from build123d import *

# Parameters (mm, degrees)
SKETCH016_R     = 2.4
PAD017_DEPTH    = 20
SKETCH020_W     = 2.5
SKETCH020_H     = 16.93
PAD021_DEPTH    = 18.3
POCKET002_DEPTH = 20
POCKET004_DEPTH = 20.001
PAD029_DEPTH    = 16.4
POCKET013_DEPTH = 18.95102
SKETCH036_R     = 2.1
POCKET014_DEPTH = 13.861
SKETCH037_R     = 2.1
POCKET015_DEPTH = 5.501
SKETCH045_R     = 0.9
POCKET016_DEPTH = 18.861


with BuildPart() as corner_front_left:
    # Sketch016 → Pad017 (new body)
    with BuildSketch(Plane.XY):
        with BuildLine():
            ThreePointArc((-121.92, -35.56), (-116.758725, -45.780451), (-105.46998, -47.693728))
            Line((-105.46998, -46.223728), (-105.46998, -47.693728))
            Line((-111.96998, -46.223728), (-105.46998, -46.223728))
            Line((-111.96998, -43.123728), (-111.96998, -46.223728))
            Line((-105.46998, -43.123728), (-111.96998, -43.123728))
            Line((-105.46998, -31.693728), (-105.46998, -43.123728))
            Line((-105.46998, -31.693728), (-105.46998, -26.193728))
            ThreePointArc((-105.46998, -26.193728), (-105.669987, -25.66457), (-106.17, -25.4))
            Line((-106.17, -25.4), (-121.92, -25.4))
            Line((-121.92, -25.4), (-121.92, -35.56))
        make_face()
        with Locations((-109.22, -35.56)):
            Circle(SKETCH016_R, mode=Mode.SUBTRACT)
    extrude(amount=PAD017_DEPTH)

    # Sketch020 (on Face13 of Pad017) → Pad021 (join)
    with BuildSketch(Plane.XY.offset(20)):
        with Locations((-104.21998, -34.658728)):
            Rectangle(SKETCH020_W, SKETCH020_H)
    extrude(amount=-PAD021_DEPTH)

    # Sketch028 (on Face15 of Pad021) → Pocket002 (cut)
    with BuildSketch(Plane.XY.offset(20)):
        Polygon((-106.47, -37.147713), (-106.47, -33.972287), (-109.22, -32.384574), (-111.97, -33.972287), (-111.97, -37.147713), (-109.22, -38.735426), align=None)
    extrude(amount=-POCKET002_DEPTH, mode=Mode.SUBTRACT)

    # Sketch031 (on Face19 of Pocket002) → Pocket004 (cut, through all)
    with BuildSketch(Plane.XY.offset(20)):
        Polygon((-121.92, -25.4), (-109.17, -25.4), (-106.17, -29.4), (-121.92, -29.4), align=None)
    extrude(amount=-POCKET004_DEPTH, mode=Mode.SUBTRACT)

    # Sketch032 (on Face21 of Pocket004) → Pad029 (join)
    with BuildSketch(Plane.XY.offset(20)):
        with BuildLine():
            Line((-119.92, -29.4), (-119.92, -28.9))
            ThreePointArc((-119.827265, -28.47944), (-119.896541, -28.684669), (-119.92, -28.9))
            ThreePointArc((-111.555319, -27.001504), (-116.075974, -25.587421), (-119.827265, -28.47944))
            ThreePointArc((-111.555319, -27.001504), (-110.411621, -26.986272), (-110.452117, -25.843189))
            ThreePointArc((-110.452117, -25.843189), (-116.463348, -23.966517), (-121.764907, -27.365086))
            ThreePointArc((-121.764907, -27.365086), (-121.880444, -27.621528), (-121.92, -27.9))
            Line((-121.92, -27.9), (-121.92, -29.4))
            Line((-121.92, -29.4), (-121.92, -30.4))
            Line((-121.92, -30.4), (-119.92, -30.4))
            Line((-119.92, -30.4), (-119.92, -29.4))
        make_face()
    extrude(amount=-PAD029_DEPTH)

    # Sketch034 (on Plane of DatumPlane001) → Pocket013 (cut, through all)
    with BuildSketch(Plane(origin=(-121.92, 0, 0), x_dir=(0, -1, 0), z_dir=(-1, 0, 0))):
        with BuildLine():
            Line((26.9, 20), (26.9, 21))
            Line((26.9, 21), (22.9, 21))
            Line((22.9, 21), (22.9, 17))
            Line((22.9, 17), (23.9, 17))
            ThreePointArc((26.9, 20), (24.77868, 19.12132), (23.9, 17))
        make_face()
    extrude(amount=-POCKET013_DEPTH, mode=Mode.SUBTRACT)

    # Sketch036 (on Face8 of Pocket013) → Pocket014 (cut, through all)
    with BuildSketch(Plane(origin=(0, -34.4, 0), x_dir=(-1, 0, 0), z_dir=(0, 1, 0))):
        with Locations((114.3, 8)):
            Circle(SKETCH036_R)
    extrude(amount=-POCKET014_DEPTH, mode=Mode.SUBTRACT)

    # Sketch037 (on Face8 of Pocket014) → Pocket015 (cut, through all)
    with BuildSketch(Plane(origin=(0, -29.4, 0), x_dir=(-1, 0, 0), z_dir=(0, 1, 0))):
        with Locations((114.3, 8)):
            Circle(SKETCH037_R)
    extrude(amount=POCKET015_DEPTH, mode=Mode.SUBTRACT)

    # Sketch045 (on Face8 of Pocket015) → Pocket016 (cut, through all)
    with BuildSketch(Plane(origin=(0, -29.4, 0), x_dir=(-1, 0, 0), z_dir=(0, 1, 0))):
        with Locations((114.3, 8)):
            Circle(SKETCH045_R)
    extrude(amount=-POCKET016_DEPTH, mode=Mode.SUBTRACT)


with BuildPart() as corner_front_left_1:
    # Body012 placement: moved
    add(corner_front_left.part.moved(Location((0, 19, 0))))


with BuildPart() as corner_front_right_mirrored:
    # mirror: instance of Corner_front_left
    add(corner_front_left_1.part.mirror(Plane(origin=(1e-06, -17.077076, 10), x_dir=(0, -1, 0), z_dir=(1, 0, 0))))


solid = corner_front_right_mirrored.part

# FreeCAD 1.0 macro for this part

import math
import FreeCAD as App
import Part
import Sketcher
Q = App.Units.Quantity


def add_polygon(sketch, points):
    """Adds a closed chain of lines whose ends are joined by coincident constraints."""
    first, n = sketch.GeometryCount, len(points)
    for a, b in zip(points, points[1:] + points[:1]):
        sketch.addGeometry(Part.LineSegment(App.Vector(*a, 0), App.Vector(*b, 0)), False)
    for i in range(n):
        sketch.addConstraint(Sketcher.Constraint("Coincident", first + i, 2, first + (i + 1) % n, 1))

doc = App.newDocument("Part")
params = doc.addObject("Spreadsheet::Sheet", "Params")
for row, (alias, value) in enumerate([
    ("sketch1_diameter", "4.8 mm"),
    ("sketch1_radius", "12.700001 mm"),
    ("sketch1_radius2", "0.800001 mm"),
    ("sketch1_width", "6.5 mm"),
    ("sketch1_height", "3.1 mm"),
    ("pad1_length", "20 mm"),
    ("sketch2_width", "2.5 mm"),
    ("sketch2_height", "16.93 mm"),
    ("pad2_length", "18.3 mm"),
    ("pocket1_length", "20 mm"),
    ("sketch4_height", "4 mm"),
    ("sketch4_length", "5 mm"),
    ("sketch4_width", "12.75 mm"),
    ("sketch5_radius", "0.8 mm"),
    ("sketch5_width", "2 mm"),
    ("sketch5_height", "2.5 mm"),
    ("sketch5_height2", "1.5 mm"),
    ("pad3_length", "16.4 mm"),
    ("sketch6_radius", "3.000001 mm"),
    ("sketch6_width", "4 mm"),
    ("sketch7_diameter", "4.2 mm"),
    ("sketch8_diameter", "4.2 mm"),
    ("sketch9_diameter", "1.8 mm"),
], start=1):
    params.set(f"A{row}", alias)
    params.set(f"B{row}", "=" + value)
    params.setAlias(f"B{row}", alias)

body = doc.addObject("PartDesign::Body", "Body")

# Sketch on XY plane
sketch1 = body.newObject("Sketcher::SketchObject", "Sketch")
sketch1.AttachmentSupport = (doc.getObject("XY_Plane"), [""])
sketch1.MapMode = "FlatFace"
sketch1.addGeometry(Part.ArcOfCircle(Part.Circle(App.Vector(-109.2, -35.6, 0), App.Vector(0, 0, 1), 12.7), math.radians(-180), math.radians(-73)), False)
sketch1.addGeometry(Part.LineSegment(App.Vector(-105.5, -47.7, 0), App.Vector(-105.5, -46.2, 0)), False)
sketch1.addGeometry(Part.LineSegment(App.Vector(-105.5, -46.2, 0), App.Vector(-112, -46.2, 0)), False)
sketch1.addGeometry(Part.LineSegment(App.Vector(-112, -46.2, 0), App.Vector(-112, -43.1, 0)), False)
sketch1.addGeometry(Part.LineSegment(App.Vector(-112, -43.1, 0), App.Vector(-105.5, -43.1, 0)), False)
sketch1.addGeometry(Part.LineSegment(App.Vector(-105.5, -43.1, 0), App.Vector(-105.5, -26.2, 0)), False)
sketch1.addGeometry(Part.ArcOfCircle(Part.Circle(App.Vector(-106.3, -26.2, 0), App.Vector(0, 0, 1), 0.8), math.radians(0), math.radians(83)), False)
sketch1.addGeometry(Part.LineSegment(App.Vector(-106.2, -25.4, 0), App.Vector(-121.9, -25.4, 0)), False)
sketch1.addGeometry(Part.LineSegment(App.Vector(-121.9, -25.4, 0), App.Vector(-121.9, -35.6, 0)), False)
sketch1.addGeometry(Part.Circle(App.Vector(-109.2, -35.6, 0), App.Vector(0, 0, 1), 2.4), False)
sketch1.addConstraint(Sketcher.Constraint("Coincident", 0, 2, 1, 1))
sketch1.addConstraint(Sketcher.Constraint("Coincident", 1, 2, 2, 1))
sketch1.addConstraint(Sketcher.Constraint("Coincident", 2, 2, 3, 1))
sketch1.addConstraint(Sketcher.Constraint("Coincident", 3, 2, 4, 1))
sketch1.addConstraint(Sketcher.Constraint("Coincident", 4, 2, 5, 1))
sketch1.addConstraint(Sketcher.Constraint("Tangent", 5, 2, 6, 1))
sketch1.addConstraint(Sketcher.Constraint("Coincident", 6, 2, 7, 1))
sketch1.addConstraint(Sketcher.Constraint("Coincident", 7, 2, 8, 1))
sketch1.addConstraint(Sketcher.Constraint("Tangent", 8, 2, 0, 1))
sketch1.addConstraint(Sketcher.Constraint("Vertical", 1))
sketch1.addConstraint(Sketcher.Constraint("Horizontal", 2))
sketch1.addConstraint(Sketcher.Constraint("Vertical", 3))
sketch1.addConstraint(Sketcher.Constraint("Horizontal", 4))
sketch1.addConstraint(Sketcher.Constraint("Vertical", 5))
sketch1.addConstraint(Sketcher.Constraint("Horizontal", 7))
sketch1.addConstraint(Sketcher.Constraint("Vertical", 8))
sketch1.addConstraint(Sketcher.Constraint("Coincident", 9, 3, 0, 3))
sketch1.addConstraint(Sketcher.Constraint("Vertical", 1, 2, 4, 2))
sketch1.addConstraint(Sketcher.Constraint("Diameter", 9, Q("4.8 mm")))
sketch1.addConstraint(Sketcher.Constraint("Radius", 0, Q("12.700001 mm")))
sketch1.addConstraint(Sketcher.Constraint("Radius", 6, Q("0.800001 mm")))
sketch1.addConstraint(Sketcher.Constraint("DistanceX", 2, 2, 2, 1, Q("6.5 mm")))
sketch1.addConstraint(Sketcher.Constraint("DistanceY", 3, 1, 3, 2, Q("3.1 mm")))
sketch1.addConstraint(Sketcher.Constraint("DistanceX", 7, 2, 7, 1, Q("15.75 mm")))
sketch1.addConstraint(Sketcher.Constraint("DistanceY", 1, 1, 1, 2, Q("1.47 mm")))
sketch1.addConstraint(Sketcher.Constraint("DistanceY", 5, 1, 5, 2, Q("16.93 mm")))
sketch1.addConstraint(Sketcher.Constraint("DistanceY", 8, 2, 8, 1, Q("10.16 mm")))
sketch1.addConstraint(Sketcher.Constraint("DistanceY", 6, 2, -1, 1, Q("25.4 mm")))
sketch1.addConstraint(Sketcher.Constraint("DistanceX", 0, 3, -1, 1, Q("109.219999 mm")))
sketch1.setExpression("Constraints[18]", "Params.sketch1_diameter")
sketch1.setExpression("Constraints[19]", "Params.sketch1_radius")
sketch1.setExpression("Constraints[20]", "Params.sketch1_radius2")
sketch1.setExpression("Constraints[21]", "Params.sketch1_width")
sketch1.setExpression("Constraints[22]", "Params.sketch1_height")
pad1 = body.newObject("PartDesign::Pad", "Pad")
pad1.Profile = sketch1
pad1.setExpression("Length", "Params.pad1_length")

# Sketch on XY plane
sketch2 = body.newObject("Sketcher::SketchObject", "Sketch001")
sketch2.AttachmentSupport = (doc.getObject("XY_Plane"), [""])
sketch2.MapMode = "FlatFace"
sketch2.AttachmentOffset = App.Placement(App.Vector(0, 0, 20), App.Rotation())
add_polygon(sketch2, [(-105.5, -26.2), (-105.5, -43.1), (-103, -43.1), (-103, -26.2)])  # lines 0-3
sketch2.addConstraint(Sketcher.Constraint("Vertical", 0))
sketch2.addConstraint(Sketcher.Constraint("Horizontal", 1))
sketch2.addConstraint(Sketcher.Constraint("Vertical", 2))
sketch2.addConstraint(Sketcher.Constraint("Horizontal", 3))
sketch2.addConstraint(Sketcher.Constraint("DistanceX", 1, 1, 1, 2, Q("2.5 mm")))
sketch2.addConstraint(Sketcher.Constraint("DistanceY", 0, 2, 0, 1, Q("16.93 mm")))
sketch2.addConstraint(Sketcher.Constraint("DistanceX", 0, 2, -1, 1, Q("105.46998 mm")))
sketch2.addConstraint(Sketcher.Constraint("DistanceY", 2, 2, -1, 1, Q("26.193728 mm")))
sketch2.setExpression("Constraints[8]", "Params.sketch2_width")
sketch2.setExpression("Constraints[9]", "Params.sketch2_height")
pad2 = body.newObject("PartDesign::Pad", "Pad001")
pad2.Profile = sketch2
pad2.setExpression("Length", "Params.pad2_length")
pad2.Reversed = True

# Sketch on XY plane
sketch3 = body.newObject("Sketcher::SketchObject", "Sketch002")
sketch3.AttachmentSupport = (doc.getObject("XY_Plane"), [""])
sketch3.MapMode = "FlatFace"
sketch3.AttachmentOffset = App.Placement(App.Vector(0, 0, 20), App.Rotation())
add_polygon(sketch3, [(-106.5, -37.1), (-106.5, -34), (-109.2, -32.4), (-112, -34), (-112, -37.1), (-109.2, -38.7)])  # lines 0-5
sketch3.addConstraint(Sketcher.Constraint("Vertical", 0))
sketch3.addConstraint(Sketcher.Constraint("Vertical", 3))
sketch3.addConstraint(Sketcher.Constraint("Parallel", 1, 4))
sketch3.addConstraint(Sketcher.Constraint("Parallel", 2, 5))
sketch3.addConstraint(Sketcher.Constraint("Horizontal", 0, 2, 2, 2))
sketch3.addConstraint(Sketcher.Constraint("Horizontal", 3, 2, 5, 2))
sketch3.addConstraint(Sketcher.Constraint("Vertical", 1, 2, 4, 2))
sketch3.addConstraint(Sketcher.Constraint("Angle", 1, Q("150.000004 deg")))
sketch3.addConstraint(Sketcher.Constraint("DistanceX", 2, 2, 0, 2, Q("5.5 mm")))
sketch3.addConstraint(Sketcher.Constraint("DistanceX", 0, 2, -1, 1, Q("106.47 mm")))
sketch3.addConstraint(Sketcher.Constraint("DistanceY", 0, 1, 0, 2, Q("3.175426 mm")))
sketch3.addConstraint(Sketcher.Constraint("DistanceY", 0, 2, -1, 1, Q("33.972287 mm")))
pocket1 = body.newObject("PartDesign::Pocket", "Pocket")
pocket1.Profile = sketch3
pocket1.setExpression("Length", "Params.pocket1_length")

# Sketch on XY plane
sketch4 = body.newObject("Sketcher::SketchObject", "Sketch003")
sketch4.AttachmentSupport = (doc.getObject("XY_Plane"), [""])
sketch4.MapMode = "FlatFace"
sketch4.AttachmentOffset = App.Placement(App.Vector(0, 0, 20), App.Rotation())
add_polygon(sketch4, [(-109.2, -25.4), (-121.9, -25.4), (-121.9, -29.4), (-106.2, -29.4)])  # lines 0-3
sketch4.addConstraint(Sketcher.Constraint("Horizontal", 0))
sketch4.addConstraint(Sketcher.Constraint("Vertical", 1))
sketch4.addConstraint(Sketcher.Constraint("Horizontal", 2))
sketch4.addConstraint(Sketcher.Constraint("DistanceY", 1, 2, 1, 1, Q("4 mm")))
sketch4.addConstraint(Sketcher.Constraint("Distance", 3, Q("5 mm")))
sketch4.addConstraint(Sketcher.Constraint("DistanceX", 0, 2, 0, 1, Q("12.75 mm")))
sketch4.addConstraint(Sketcher.Constraint("DistanceY", 0, 2, -1, 1, Q("25.4 mm")))
sketch4.addConstraint(Sketcher.Constraint("DistanceX", 0, 2, -1, 1, Q("121.92 mm")))
sketch4.setExpression("Constraints[7]", "Params.sketch4_height")
sketch4.setExpression("Constraints[8]", "Params.sketch4_length")
sketch4.setExpression("Constraints[9]", "Params.sketch4_width")
pocket2 = body.newObject("PartDesign::Pocket", "Pocket001")
pocket2.Profile = sketch4
pocket2.Type = "ThroughAll"

# Sketch on XY plane
sketch5 = body.newObject("Sketcher::SketchObject", "Sketch004")
sketch5.AttachmentSupport = (doc.getObject("XY_Plane"), [""])
sketch5.MapMode = "FlatFace"
sketch5.AttachmentOffset = App.Placement(App.Vector(0, 0, 20), App.Rotation())
sketch5.addGeometry(Part.ArcOfCircle(Part.Circle(App.Vector(-118.92, -28.9, 0), App.Vector(0, 0, 1), 1), math.radians(155), math.radians(180)), False)
sketch5.addGeometry(Part.ArcOfCircle(Part.Circle(App.Vector(-115.17, -30.64, 0), App.Vector(0, 0, 1), 5.13), math.radians(45), math.radians(155)), False)
sketch5.addGeometry(Part.ArcOfCircle(Part.Circle(App.Vector(-110.99, -26.43, 0), App.Vector(0, 0, 1), 0.8), math.radians(-135), math.radians(48)), False)
sketch5.addGeometry(Part.ArcOfCircle(Part.Circle(App.Vector(-115.47, -31.35, 0), App.Vector(0, 0, 1), 7.45), math.radians(48), math.radians(148)), False)
sketch5.addGeometry(Part.ArcOfCircle(Part.Circle(App.Vector(-120.92, -27.9, 0), App.Vector(0, 0, 1), 1), math.radians(148), math.radians(180)), False)
sketch5.addGeometry(Part.LineSegment(App.Vector(-121.92, -27.9, 0), App.Vector(-121.92, -30.4, 0)), False)
sketch5.addGeometry(Part.LineSegment(App.Vector(-121.92, -30.4, 0), App.Vector(-119.92, -30.4, 0)), False)
sketch5.addGeometry(Part.LineSegment(App.Vector(-119.92, -30.4, 0), App.Vector(-119.92, -28.9, 0)), False)
sketch5.addConstraint(Sketcher.Constraint("Coincident", 0, 1, 1, 2))
sketch5.addConstraint(Sketcher.Constraint("Tangent", 1, 1, 2, 1))
sketch5.addConstraint(Sketcher.Constraint("Tangent", 2, 2, 3, 1))
sketch5.addConstraint(Sketcher.Constraint("Coincident", 3, 2, 4, 1))
sketch5.addConstraint(Sketcher.Constraint("Coincident", 4, 2, 5, 1))
sketch5.addConstraint(Sketcher.Constraint("Coincident", 5, 2, 6, 1))
sketch5.addConstraint(Sketcher.Constraint("Coincident", 6, 2, 7, 1))
sketch5.addConstraint(Sketcher.Constraint("Tangent", 7, 2, 0, 2))
sketch5.addConstraint(Sketcher.Constraint("Vertical", 5))
sketch5.addConstraint(Sketcher.Constraint("Horizontal", 6))
sketch5.addConstraint(Sketcher.Constraint("Vertical", 7))
sketch5.addConstraint(Sketcher.Constraint("Radius", 2, Q("0.8 mm")))
sketch5.addConstraint(Sketcher.Constraint("DistanceX", 6, 1, 6, 2, Q("2 mm")))
sketch5.addConstraint(Sketcher.Constraint("DistanceY", 5, 2, 5, 1, Q("2.5 mm")))
sketch5.addConstraint(Sketcher.Constraint("DistanceY", 7, 1, 7, 2, Q("1.5 mm")))
sketch5.addConstraint(Sketcher.Constraint("DistanceY", 0, 3, 4, 3, Q("0.999999 mm")))
sketch5.addConstraint(Sketcher.Constraint("DistanceY", 0, 3, -1, 1, Q("28.900002 mm")))
sketch5.addConstraint(Sketcher.Constraint("DistanceX", 3, 3, -1, 1, Q("115.47 mm")))
sketch5.addConstraint(Sketcher.Constraint("DistanceX", 4, 2, -1, 1, Q("121.92 mm")))
sketch5.addConstraint(Sketcher.Constraint("Radius", 0, Q("1.00001 mm")))
sketch5.addConstraint(Sketcher.Constraint("Radius", 1, Q("5.129048 mm")))
sketch5.addConstraint(Sketcher.Constraint("Radius", 3, Q("7.450416 mm")))
sketch5.addConstraint(Sketcher.Constraint("Radius", 4, Q("1.000013 mm")))
sketch5.addConstraint(Sketcher.Constraint("DistanceX", 1, 1, 2, 3, Q("0.564399 mm")))
sketch5.addConstraint(Sketcher.Constraint("DistanceY", 0, 1, -1, 1, Q("28.47944 mm")))
sketch5.addConstraint(Sketcher.Constraint("DistanceX", 3, 2, 4, 3, Q("0.84492 mm")))
sketch5.setExpression("Constraints[11]", "Params.sketch5_radius")
sketch5.setExpression("Constraints[12]", "Params.sketch5_width")
sketch5.setExpression("Constraints[13]", "Params.sketch5_height")
sketch5.setExpression("Constraints[14]", "Params.sketch5_height2")
pad3 = body.newObject("PartDesign::Pad", "Pad002")
pad3.Profile = sketch5
pad3.setExpression("Length", "Params.pad3_length")
pad3.Reversed = True

# Sketch on YZ plane
sketch6 = body.newObject("Sketcher::SketchObject", "Sketch005")
sketch6.AttachmentSupport = (doc.getObject("YZ_Plane"), [""])
sketch6.MapMode = "FlatFace"
sketch6.AttachmentOffset = App.Placement(App.Vector(0, 0, -121.92), App.Rotation())
sketch6.addGeometry(Part.LineSegment(App.Vector(-26.9, 20, 0), App.Vector(-26.9, 21, 0)), False)
sketch6.addGeometry(Part.LineSegment(App.Vector(-26.9, 21, 0), App.Vector(-22.9, 21, 0)), False)
sketch6.addGeometry(Part.LineSegment(App.Vector(-22.9, 21, 0), App.Vector(-22.9, 17, 0)), False)
sketch6.addGeometry(Part.LineSegment(App.Vector(-22.9, 17, 0), App.Vector(-23.9, 17, 0)), False)
sketch6.addGeometry(Part.ArcOfCircle(Part.Circle(App.Vector(-26.9, 17, 0), App.Vector(0, 0, 1), 3), math.radians(0), math.radians(90)), False)
sketch6.addConstraint(Sketcher.Constraint("Coincident", 0, 2, 1, 1))
sketch6.addConstraint(Sketcher.Constraint("Coincident", 1, 2, 2, 1))
sketch6.addConstraint(Sketcher.Constraint("Coincident", 2, 2, 3, 1))
sketch6.addConstraint(Sketcher.Constraint("Coincident", 3, 2, 4, 1))
sketch6.addConstraint(Sketcher.Constraint("Coincident", 4, 2, 0, 1))
sketch6.addConstraint(Sketcher.Constraint("Vertical", 0))
sketch6.addConstraint(Sketcher.Constraint("Horizontal", 1))
sketch6.addConstraint(Sketcher.Constraint("Vertical", 2))
sketch6.addConstraint(Sketcher.Constraint("Horizontal", 3))
sketch6.addConstraint(Sketcher.Constraint("Horizontal", 4, 3, 2, 2))
sketch6.addConstraint(Sketcher.Constraint("Vertical", 4, 3, 0, 2))
sketch6.addConstraint(Sketcher.Constraint("Equal", 3, 0))
sketch6.addConstraint(Sketcher.Constraint("Radius", 4, Q("3.000001 mm")))
sketch6.addConstraint(Sketcher.Constraint("DistanceX", 1, 1, 1, 2, Q("4 mm")))
sketch6.addConstraint(Sketcher.Constraint("DistanceY", -1, 1, 4, 3, Q("16.999999 mm")))
sketch6.addConstraint(Sketcher.Constraint("DistanceX", 4, 3, -1, 1, Q("26.900001 mm")))
sketch6.setExpression("Constraints[12]", "Params.sketch6_radius")
sketch6.setExpression("Constraints[13]", "Params.sketch6_width")
pocket3 = body.newObject("PartDesign::Pocket", "Pocket002")
pocket3.Profile = sketch6
pocket3.Type = "ThroughAll"
pocket3.Reversed = True

# Sketch on XZ plane
sketch7 = body.newObject("Sketcher::SketchObject", "Sketch006")
sketch7.AttachmentSupport = (doc.getObject("XZ_Plane"), [""])
sketch7.MapMode = "FlatFace"
sketch7.AttachmentOffset = App.Placement(App.Vector(0, 0, 34.4), App.Rotation())
sketch7.addGeometry(Part.Circle(App.Vector(-114.3, 8, 0), App.Vector(0, 0, 1), 2.1), False)
sketch7.addConstraint(Sketcher.Constraint("Diameter", 0, Q("4.2 mm")))
sketch7.addConstraint(Sketcher.Constraint("DistanceY", -1, 1, 0, 3, Q("8 mm")))
sketch7.addConstraint(Sketcher.Constraint("DistanceX", 0, 3, -1, 1, Q("114.3 mm")))
sketch7.setExpression("Constraints[0]", "Params.sketch7_diameter")
pocket4 = body.newObject("PartDesign::Pocket", "Pocket003")
pocket4.Profile = sketch7
pocket4.Type = "ThroughAll"
pocket4.Reversed = True

# Sketch on XZ plane
sketch8 = body.newObject("Sketcher::SketchObject", "Sketch007")
sketch8.AttachmentSupport = (doc.getObject("XZ_Plane"), [""])
sketch8.MapMode = "FlatFace"
sketch8.AttachmentOffset = App.Placement(App.Vector(0, 0, 29.4), App.Rotation())
sketch8.addGeometry(Part.Circle(App.Vector(-114.3, 8, 0), App.Vector(0, 0, 1), 2.1), False)
sketch8.addConstraint(Sketcher.Constraint("Diameter", 0, Q("4.2 mm")))
sketch8.addConstraint(Sketcher.Constraint("DistanceY", -1, 1, 0, 3, Q("8 mm")))
sketch8.addConstraint(Sketcher.Constraint("DistanceX", 0, 3, -1, 1, Q("114.3 mm")))
sketch8.setExpression("Constraints[0]", "Params.sketch8_diameter")
pocket5 = body.newObject("PartDesign::Pocket", "Pocket004")
pocket5.Profile = sketch8
pocket5.Type = "ThroughAll"

# Sketch on XZ plane
sketch9 = body.newObject("Sketcher::SketchObject", "Sketch008")
sketch9.AttachmentSupport = (doc.getObject("XZ_Plane"), [""])
sketch9.MapMode = "FlatFace"
sketch9.AttachmentOffset = App.Placement(App.Vector(0, 0, 29.4), App.Rotation())
sketch9.addGeometry(Part.Circle(App.Vector(-114.3, 8, 0), App.Vector(0, 0, 1), 0.9), False)
sketch9.addConstraint(Sketcher.Constraint("Diameter", 0, Q("1.8 mm")))
sketch9.addConstraint(Sketcher.Constraint("DistanceY", -1, 1, 0, 3, Q("8 mm")))
sketch9.addConstraint(Sketcher.Constraint("DistanceX", 0, 3, -1, 1, Q("114.3 mm")))
sketch9.setExpression("Constraints[0]", "Params.sketch9_diameter")
pocket6 = body.newObject("PartDesign::Pocket", "Pocket005")
pocket6.Profile = sketch9
pocket6.Type = "ThroughAll"
pocket6.Reversed = True
body2 = doc.addObject("PartDesign::Body", "Body001")
doc.recompute()

body.Placement = App.Placement(App.Vector(0, 19, 0), App.Rotation(App.Vector(0, 0, 1), 0))
boolean = body2.newObject("PartDesign::Boolean", "Boolean")
boolean.Type = "Fuse"
boolean.addObjects([body])
body3 = doc.addObject("PartDesign::Body", "Body002")
doc.recompute()

mirroring = doc.addObject("Part::Mirroring", "Mirroring")
mirroring.Source = body2
mirroring.Base = App.Vector(0.000001, -17.077076, 10)
mirroring.Normal = App.Vector(1, 0, 0)
body3.BaseFeature = mirroring
doc.recompute()
body2.Visibility = False
mirroring.Visibility = False

doc.recompute()
